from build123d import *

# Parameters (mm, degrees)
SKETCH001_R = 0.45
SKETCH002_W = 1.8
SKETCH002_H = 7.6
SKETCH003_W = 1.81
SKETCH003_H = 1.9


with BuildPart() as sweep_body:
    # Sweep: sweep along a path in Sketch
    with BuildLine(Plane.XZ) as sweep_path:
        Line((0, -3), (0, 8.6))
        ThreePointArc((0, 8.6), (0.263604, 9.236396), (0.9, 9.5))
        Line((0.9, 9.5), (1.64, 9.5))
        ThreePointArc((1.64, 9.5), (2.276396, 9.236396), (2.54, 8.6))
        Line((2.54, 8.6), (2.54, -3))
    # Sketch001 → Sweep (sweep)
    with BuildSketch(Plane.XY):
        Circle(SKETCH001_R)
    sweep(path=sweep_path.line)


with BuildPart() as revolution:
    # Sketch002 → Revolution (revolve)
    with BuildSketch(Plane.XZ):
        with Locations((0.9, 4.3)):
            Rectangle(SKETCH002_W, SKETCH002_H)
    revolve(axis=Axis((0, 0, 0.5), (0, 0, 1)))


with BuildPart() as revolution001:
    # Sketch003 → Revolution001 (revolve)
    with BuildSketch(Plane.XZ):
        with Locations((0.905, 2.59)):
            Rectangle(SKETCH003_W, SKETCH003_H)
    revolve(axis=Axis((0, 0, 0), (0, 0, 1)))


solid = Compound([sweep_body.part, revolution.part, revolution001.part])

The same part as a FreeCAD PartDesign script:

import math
import FreeCAD as App
import Part
import Sketcher
from FreeCAD import Vector
Q = App.Units.Quantity

doc = App.newDocument("Part")
params = doc.addObject("Spreadsheet::Sheet", "Params")
for row, (alias, value) in enumerate([
    ("sketch1_diameter", "0.9 mm"),
    ("sketch2_radius", "0.9 mm"),
    ("sketch2_height", "11.6 mm"),
    ("sketch2_width", "0.74 mm"),
    ("sketch3_width", "1.8 mm"),
    ("sketch3_height", "7.6 mm"),
    ("revolution_angle", "360 deg"),
    ("sketch4_height", "1.9 mm"),
    ("sketch4_width", "1.81 mm"),
    ("revolution2_angle", "360 deg"),
], start=1):
    params.set(f"A{row}", alias)
    params.set(f"B{row}", "=" + value)
    params.setAlias(f"B{row}", alias)

body = doc.addObject("PartDesign::Body", "Body")

sketch1 = body.newObject("Sketcher::SketchObject", "Sketch")
sketch1.AttachmentSupport = (doc.getObject("XY_Plane"), [""])
sketch1.MapMode = "FlatFace"
sketch1.addGeometry(Part.Circle(Vector(0, 0, 0), Vector(0, 0, 1), 0.45), False)
sketch1.addConstraint(Sketcher.Constraint("Coincident", 0, 3, -1, 1))
sketch1.addConstraint(Sketcher.Constraint("Diameter", 0, Q("0.9 mm")))
sketch1.setExpression("Constraints[1]", "Params.sketch1_diameter")

sketch2 = body.newObject("Sketcher::SketchObject", "Sketch001")
sketch2.AttachmentSupport = (doc.getObject("XZ_Plane"), [""])
sketch2.MapMode = "FlatFace"
sketch2.addGeometry(Part.LineSegment(Vector(0, -3, 0), Vector(0, 8.6, 0)), False)
sketch2.addGeometry(Part.ArcOfCircle(Part.Circle(Vector(0.9, 8.6, 0), Vector(0, 0, 1), 0.9), math.radians(90), math.radians(180)), False)
sketch2.addGeometry(Part.LineSegment(Vector(0.9, 9.5, 0), Vector(1.6, 9.5, 0)), False)
sketch2.addGeometry(Part.ArcOfCircle(Part.Circle(Vector(1.6, 8.6, 0), Vector(0, 0, 1), 0.9), math.radians(0), math.radians(90)), False)
sketch2.addGeometry(Part.LineSegment(Vector(2.5, 8.6, 0), Vector(2.5, -3, 0)), False)
sketch2.addConstraint(Sketcher.Constraint("Tangent", 0, 2, 1, 2))
sketch2.addConstraint(Sketcher.Constraint("Tangent", 1, 1, 2, 1))
sketch2.addConstraint(Sketcher.Constraint("Tangent", 2, 2, 3, 2))
sketch2.addConstraint(Sketcher.Constraint("Tangent", 3, 1, 4, 1))
sketch2.addConstraint(Sketcher.Constraint("Vertical", 0))
sketch2.addConstraint(Sketcher.Constraint("Horizontal", 2))
sketch2.addConstraint(Sketcher.Constraint("Vertical", 4))
sketch2.addConstraint(Sketcher.Constraint("Equal", 1, 3))
sketch2.addConstraint(Sketcher.Constraint("PointOnObject", 0, 1, -2))
sketch2.addConstraint(Sketcher.Constraint("Horizontal", 0, 1, 4, 2))
sketch2.addConstraint(Sketcher.Constraint("Radius", 1, Q("0.9 mm")))
sketch2.addConstraint(Sketcher.Constraint("DistanceY", 0, 1, 0, 2, Q("11.6 mm")))
sketch2.addConstraint(Sketcher.Constraint("DistanceY", 0, 1, -1, 1, Q("3 mm")))
sketch2.addConstraint(Sketcher.Constraint("DistanceX", 2, 1, 2, 2, Q("0.74 mm")))
sketch2.setExpression("Constraints[10]", "Params.sketch2_radius")
sketch2.setExpression("Constraints[11]", "Params.sketch2_height")
sketch2.setExpression("Constraints[13]", "Params.sketch2_width")
doc.recompute()

additivepipe = body.newObject("PartDesign::AdditivePipe", "AdditivePipe")
additivepipe.Profile = sketch1
additivepipe.Spine = (sketch2, ["Edge1", "Edge2", "Edge3", "Edge4", "Edge5"])
body2 = doc.addObject("PartDesign::Body", "Body001")

sketch3 = body2.newObject("Sketcher::SketchObject", "Sketch002")
sketch3.AttachmentSupport = (doc.getObject("XZ_Plane001"), [""])
sketch3.MapMode = "FlatFace"
sketch3.addGeometry(Part.LineSegment(Vector(0, 8.1, 0), Vector(0, 0.5, 0)), False)
sketch3.addGeometry(Part.LineSegment(Vector(0, 0.5, 0), Vector(1.8, 0.5, 0)), False)
sketch3.addGeometry(Part.LineSegment(Vector(1.8, 0.5, 0), Vector(1.8, 8.1, 0)), False)
sketch3.addGeometry(Part.LineSegment(Vector(1.8, 8.1, 0), Vector(0, 8.1, 0)), False)
sketch3.addConstraint(Sketcher.Constraint("Coincident", 0, 2, 1, 1))
sketch3.addConstraint(Sketcher.Constraint("Coincident", 1, 2, 2, 1))
sketch3.addConstraint(Sketcher.Constraint("Coincident", 2, 2, 3, 1))
sketch3.addConstraint(Sketcher.Constraint("Coincident", 3, 2, 0, 1))
sketch3.addConstraint(Sketcher.Constraint("Vertical", 0))
sketch3.addConstraint(Sketcher.Constraint("Horizontal", 1))
sketch3.addConstraint(Sketcher.Constraint("Vertical", 2))
sketch3.addConstraint(Sketcher.Constraint("Horizontal", 3))
sketch3.addConstraint(Sketcher.Constraint("PointOnObject", 0, 2, -2))
sketch3.addConstraint(Sketcher.Constraint("DistanceX", 1, 1, 1, 2, Q("1.8 mm")))
sketch3.addConstraint(Sketcher.Constraint("DistanceY", 0, 2, 0, 1, Q("7.6 mm")))
sketch3.addConstraint(Sketcher.Constraint("DistanceY", -1, 1, 0, 2, Q("0.5 mm")))
sketch3.setExpression("Constraints[9]", "Params.sketch3_width")
sketch3.setExpression("Constraints[10]", "Params.sketch3_height")
revolution = body2.newObject("PartDesign::Revolution", "Revolution")
revolution.Profile = sketch3
revolution.ReferenceAxis = (sketch3, ["V_Axis"])
revolution.setExpression("Angle", "Params.revolution_angle")
body3 = doc.addObject("PartDesign::Body", "Body002")

sketch4 = body3.newObject("Sketcher::SketchObject", "Sketch003")
sketch4.AttachmentSupport = (doc.getObject("XZ_Plane002"), [""])
sketch4.MapMode = "FlatFace"
sketch4.addGeometry(Part.LineSegment(Vector(0, 3.5, 0), Vector(0, 1.6, 0)), False)
sketch4.addGeometry(Part.LineSegment(Vector(0, 1.6, 0), Vector(1.8, 1.6, 0)), False)
sketch4.addGeometry(Part.LineSegment(Vector(1.8, 1.6, 0), Vector(1.8, 3.5, 0)), False)
sketch4.addGeometry(Part.LineSegment(Vector(1.8, 3.5, 0), Vector(0, 3.5, 0)), False)
sketch4.addConstraint(Sketcher.Constraint("Coincident", 0, 2, 1, 1))
sketch4.addConstraint(Sketcher.Constraint("Coincident", 1, 2, 2, 1))
sketch4.addConstraint(Sketcher.Constraint("Coincident", 2, 2, 3, 1))
sketch4.addConstraint(Sketcher.Constraint("Coincident", 3, 2, 0, 1))
sketch4.addConstraint(Sketcher.Constraint("Vertical", 0))
sketch4.addConstraint(Sketcher.Constraint("Horizontal", 1))
sketch4.addConstraint(Sketcher.Constraint("Vertical", 2))
sketch4.addConstraint(Sketcher.Constraint("Horizontal", 3))
sketch4.addConstraint(Sketcher.Constraint("PointOnObject", 0, 2, -2))
sketch4.addConstraint(Sketcher.Constraint("DistanceY", 0, 2, 0, 1, Q("1.9 mm")))
sketch4.addConstraint(Sketcher.Constraint("DistanceX", 1, 1, 1, 2, Q("1.81 mm")))
sketch4.addConstraint(Sketcher.Constraint("DistanceY", -1, 1, 0, 2, Q("1.64 mm")))
sketch4.setExpression("Constraints[9]", "Params.sketch4_height")
sketch4.setExpression("Constraints[10]", "Params.sketch4_width")
revolution2 = body3.newObject("PartDesign::Revolution", "Revolution001")
revolution2.Profile = sketch4
revolution2.ReferenceAxis = (sketch4, ["V_Axis"])
revolution2.setExpression("Angle", "Params.revolution2_angle")

doc.recompute()
